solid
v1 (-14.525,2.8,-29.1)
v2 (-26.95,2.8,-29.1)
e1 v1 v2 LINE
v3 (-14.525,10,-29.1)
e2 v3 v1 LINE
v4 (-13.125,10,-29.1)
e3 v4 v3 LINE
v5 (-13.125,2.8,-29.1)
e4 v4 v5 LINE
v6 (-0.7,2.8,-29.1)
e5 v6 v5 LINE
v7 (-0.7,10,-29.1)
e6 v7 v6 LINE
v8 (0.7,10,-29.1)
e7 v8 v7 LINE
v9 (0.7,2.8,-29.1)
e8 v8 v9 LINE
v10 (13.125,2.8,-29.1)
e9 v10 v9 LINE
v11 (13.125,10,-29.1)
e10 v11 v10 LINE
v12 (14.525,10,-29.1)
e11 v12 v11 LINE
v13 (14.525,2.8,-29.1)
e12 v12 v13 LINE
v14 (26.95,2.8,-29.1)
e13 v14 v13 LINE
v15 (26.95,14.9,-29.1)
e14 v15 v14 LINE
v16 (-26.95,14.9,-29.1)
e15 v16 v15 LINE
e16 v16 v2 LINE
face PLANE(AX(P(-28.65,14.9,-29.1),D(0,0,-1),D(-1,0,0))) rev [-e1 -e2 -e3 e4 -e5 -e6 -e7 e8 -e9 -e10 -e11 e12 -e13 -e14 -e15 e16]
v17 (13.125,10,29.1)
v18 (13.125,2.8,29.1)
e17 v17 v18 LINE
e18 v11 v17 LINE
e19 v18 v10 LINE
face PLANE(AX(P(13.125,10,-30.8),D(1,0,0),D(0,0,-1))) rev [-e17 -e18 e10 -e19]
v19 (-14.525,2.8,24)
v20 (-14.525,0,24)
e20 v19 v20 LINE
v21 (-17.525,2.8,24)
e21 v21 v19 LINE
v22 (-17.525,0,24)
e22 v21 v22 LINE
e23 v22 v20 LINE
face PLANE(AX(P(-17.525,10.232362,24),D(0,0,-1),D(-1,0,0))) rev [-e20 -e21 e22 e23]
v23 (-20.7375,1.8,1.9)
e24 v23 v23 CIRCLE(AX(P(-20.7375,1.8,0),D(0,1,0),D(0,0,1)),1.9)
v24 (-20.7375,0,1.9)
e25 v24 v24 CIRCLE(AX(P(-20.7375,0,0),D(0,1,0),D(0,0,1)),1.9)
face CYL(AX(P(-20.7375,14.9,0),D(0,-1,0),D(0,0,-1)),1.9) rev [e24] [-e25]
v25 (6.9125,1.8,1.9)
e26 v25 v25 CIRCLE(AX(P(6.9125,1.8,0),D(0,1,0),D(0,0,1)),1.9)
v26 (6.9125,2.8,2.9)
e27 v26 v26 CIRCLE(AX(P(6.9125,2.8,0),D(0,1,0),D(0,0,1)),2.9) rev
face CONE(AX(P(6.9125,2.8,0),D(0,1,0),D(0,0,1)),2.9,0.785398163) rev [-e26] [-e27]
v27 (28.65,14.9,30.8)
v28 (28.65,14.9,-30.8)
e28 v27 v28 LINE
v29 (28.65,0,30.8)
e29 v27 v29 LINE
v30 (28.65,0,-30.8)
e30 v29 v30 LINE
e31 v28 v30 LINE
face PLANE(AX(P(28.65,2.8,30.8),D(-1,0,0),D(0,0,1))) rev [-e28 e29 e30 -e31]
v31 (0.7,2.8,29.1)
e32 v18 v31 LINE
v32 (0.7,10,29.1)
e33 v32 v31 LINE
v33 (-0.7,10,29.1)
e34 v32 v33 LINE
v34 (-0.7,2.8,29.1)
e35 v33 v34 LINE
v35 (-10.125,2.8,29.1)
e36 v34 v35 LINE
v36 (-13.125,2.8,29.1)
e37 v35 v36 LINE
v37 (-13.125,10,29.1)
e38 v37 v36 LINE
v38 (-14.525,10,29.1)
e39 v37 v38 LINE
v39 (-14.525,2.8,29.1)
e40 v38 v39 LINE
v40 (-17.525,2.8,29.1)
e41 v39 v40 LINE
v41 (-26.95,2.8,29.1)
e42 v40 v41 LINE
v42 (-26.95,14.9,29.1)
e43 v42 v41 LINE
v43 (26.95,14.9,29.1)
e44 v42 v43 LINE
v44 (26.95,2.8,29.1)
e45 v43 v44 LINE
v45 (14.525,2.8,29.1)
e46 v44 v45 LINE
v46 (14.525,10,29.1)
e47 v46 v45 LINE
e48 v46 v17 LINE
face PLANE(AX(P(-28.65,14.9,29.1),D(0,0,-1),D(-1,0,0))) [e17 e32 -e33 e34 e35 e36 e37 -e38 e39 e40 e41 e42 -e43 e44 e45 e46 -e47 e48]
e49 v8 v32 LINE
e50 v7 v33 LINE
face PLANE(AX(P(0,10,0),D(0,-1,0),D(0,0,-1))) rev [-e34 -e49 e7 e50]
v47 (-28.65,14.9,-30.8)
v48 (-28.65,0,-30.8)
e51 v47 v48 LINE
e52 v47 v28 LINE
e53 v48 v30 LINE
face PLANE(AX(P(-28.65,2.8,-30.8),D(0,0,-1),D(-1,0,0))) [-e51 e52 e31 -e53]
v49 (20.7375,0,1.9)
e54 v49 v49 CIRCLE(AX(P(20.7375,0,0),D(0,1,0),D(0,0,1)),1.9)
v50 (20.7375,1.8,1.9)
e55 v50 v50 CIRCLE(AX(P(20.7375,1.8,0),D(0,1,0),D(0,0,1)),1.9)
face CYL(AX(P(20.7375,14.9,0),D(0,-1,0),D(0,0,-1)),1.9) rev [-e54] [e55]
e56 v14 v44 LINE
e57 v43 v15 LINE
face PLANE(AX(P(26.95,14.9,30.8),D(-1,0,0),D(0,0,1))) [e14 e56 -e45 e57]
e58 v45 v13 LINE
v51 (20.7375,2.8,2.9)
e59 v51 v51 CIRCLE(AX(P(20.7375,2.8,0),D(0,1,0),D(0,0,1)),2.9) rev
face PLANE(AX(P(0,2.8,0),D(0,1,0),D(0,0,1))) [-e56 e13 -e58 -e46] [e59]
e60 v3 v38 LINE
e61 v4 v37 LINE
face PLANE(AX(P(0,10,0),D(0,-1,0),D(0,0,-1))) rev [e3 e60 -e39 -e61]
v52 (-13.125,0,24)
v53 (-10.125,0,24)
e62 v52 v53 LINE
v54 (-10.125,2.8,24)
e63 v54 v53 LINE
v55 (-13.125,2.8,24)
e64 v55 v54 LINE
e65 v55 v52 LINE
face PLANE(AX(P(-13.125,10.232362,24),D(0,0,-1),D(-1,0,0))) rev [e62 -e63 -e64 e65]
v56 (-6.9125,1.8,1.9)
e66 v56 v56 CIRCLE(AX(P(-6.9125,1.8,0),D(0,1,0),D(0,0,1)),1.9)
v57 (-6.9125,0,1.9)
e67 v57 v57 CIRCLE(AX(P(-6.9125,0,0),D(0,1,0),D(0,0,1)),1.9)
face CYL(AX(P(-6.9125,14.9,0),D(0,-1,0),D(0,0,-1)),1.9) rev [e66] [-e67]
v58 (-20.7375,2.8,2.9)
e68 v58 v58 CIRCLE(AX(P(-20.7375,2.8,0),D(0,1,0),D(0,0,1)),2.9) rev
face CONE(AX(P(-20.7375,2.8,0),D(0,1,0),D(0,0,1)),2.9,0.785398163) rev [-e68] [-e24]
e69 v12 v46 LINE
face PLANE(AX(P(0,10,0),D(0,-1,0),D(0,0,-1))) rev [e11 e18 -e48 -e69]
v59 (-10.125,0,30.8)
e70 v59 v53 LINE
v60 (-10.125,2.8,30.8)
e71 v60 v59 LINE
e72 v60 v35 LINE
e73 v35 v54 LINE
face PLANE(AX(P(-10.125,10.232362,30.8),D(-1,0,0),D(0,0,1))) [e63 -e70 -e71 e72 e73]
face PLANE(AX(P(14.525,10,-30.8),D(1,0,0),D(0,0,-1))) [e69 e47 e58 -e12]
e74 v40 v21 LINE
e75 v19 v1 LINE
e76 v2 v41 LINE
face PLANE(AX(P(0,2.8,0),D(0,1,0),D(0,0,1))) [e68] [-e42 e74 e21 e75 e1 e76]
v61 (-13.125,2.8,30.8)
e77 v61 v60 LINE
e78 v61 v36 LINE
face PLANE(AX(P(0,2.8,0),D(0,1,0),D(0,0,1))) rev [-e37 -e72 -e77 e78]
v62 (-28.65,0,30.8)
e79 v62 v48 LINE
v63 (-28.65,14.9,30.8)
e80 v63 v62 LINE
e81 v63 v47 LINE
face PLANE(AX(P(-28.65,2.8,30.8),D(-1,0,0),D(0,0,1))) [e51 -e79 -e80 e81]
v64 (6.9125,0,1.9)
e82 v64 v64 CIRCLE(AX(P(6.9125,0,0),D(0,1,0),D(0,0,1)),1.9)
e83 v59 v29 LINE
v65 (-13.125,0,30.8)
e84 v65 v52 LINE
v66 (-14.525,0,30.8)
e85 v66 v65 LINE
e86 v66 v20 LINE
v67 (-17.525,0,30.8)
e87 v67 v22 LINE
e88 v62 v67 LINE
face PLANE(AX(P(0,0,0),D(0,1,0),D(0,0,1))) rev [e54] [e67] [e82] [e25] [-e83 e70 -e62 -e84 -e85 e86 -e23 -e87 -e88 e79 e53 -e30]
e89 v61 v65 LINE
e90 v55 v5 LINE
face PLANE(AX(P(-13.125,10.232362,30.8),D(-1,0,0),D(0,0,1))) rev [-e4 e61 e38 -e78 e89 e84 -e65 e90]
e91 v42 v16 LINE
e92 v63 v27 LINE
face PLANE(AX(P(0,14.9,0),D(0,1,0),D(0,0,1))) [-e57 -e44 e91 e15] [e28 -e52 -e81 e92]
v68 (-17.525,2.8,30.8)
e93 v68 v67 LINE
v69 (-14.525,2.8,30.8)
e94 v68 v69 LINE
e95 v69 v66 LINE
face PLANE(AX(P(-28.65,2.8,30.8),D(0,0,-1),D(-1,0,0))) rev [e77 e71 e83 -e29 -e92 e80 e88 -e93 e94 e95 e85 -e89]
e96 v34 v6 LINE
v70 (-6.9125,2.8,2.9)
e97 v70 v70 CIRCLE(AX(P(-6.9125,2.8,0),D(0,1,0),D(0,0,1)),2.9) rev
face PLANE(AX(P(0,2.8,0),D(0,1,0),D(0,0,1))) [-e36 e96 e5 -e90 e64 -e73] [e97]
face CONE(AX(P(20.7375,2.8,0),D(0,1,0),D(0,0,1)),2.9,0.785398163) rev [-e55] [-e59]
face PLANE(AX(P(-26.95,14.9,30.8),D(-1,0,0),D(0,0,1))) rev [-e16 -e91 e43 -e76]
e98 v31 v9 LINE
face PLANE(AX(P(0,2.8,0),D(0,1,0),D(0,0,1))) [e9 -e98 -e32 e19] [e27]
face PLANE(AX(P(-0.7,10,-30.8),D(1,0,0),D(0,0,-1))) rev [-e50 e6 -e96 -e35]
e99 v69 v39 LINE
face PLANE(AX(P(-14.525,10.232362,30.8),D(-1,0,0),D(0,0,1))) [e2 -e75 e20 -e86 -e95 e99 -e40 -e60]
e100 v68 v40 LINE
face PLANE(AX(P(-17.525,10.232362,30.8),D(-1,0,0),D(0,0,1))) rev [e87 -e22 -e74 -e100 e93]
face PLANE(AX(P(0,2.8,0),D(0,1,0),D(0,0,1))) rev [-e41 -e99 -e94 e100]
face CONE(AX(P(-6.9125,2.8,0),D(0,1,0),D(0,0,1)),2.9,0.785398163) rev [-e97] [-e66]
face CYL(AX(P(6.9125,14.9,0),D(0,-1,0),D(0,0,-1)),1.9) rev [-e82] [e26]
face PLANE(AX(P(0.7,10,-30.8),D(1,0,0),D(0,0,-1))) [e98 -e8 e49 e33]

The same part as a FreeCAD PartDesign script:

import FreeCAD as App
import Part
import Sketcher
from FreeCAD import Vector


def edges_at(feature, points):
    """Names of the edges that pass closest to the given points."""
    edges = feature.Shape.Edges
    near = lambda p: min(range(len(edges)), key=lambda i: edges[i].distToShape(Part.Vertex(*p))[0])
    return sorted({f"Edge{near(p) + 1}" for p in points})


def add_polygon(sketch, points):
    """Adds a closed chain of lines whose ends are joined by coincident constraints."""
    first, n = sketch.GeometryCount, len(points)
    for a, b in zip(points, points[1:] + points[:1]):
        sketch.addGeometry(Part.LineSegment(App.Vector(*a, 0), App.Vector(*b, 0)), False)
    for i in range(n):
        sketch.addConstraint(Sketcher.Constraint("Coincident", first + i, 2, first + (i + 1) % n, 1))

doc = App.newDocument("Part")
body = doc.addObject("PartDesign::Body", "Body")

# Sketch on XZ plane
sketch1 = body.newObject("Sketcher::SketchObject", "Sketch")
sketch1.AttachmentSupport = (doc.getObject("XZ_Plane"), [""])
sketch1.MapMode = "FlatFace"
add_polygon(sketch1, [(-29, -31), (-29, 31), (29, 31), (29, -31)])  # lines 0-3
sketch1.addConstraint(Sketcher.Constraint("Vertical", 0))
sketch1.addConstraint(Sketcher.Constraint("Horizontal", 1))
sketch1.addConstraint(Sketcher.Constraint("Vertical", 2))
sketch1.addConstraint(Sketcher.Constraint("Horizontal", 3))
sketch1.addConstraint(Sketcher.Constraint("Symmetric", 0, 2, 2, 2, -1, 1))
sketch1.addConstraint(Sketcher.Constraint("DistanceX", 1, 1, 1, 2, 57.3))
sketch1.addConstraint(Sketcher.Constraint("DistanceY", 0, 1, 0, 2, 61.6))
pad1 = body.newObject("PartDesign::Pad", "Pad")
pad1.Profile = sketch1
pad1.Length = 2.8
pad1.Reversed = True

# Sketch on XZ plane
sketch2 = body.newObject("Sketcher::SketchObject", "Sketch001")
sketch2.AttachmentSupport = (doc.getObject("XZ_Plane"), [""])
sketch2.MapMode = "FlatFace"
add_polygon(sketch2, [(-29, -31), (-29, 31), (29, 31), (29, -31)])  # lines 0-3
add_polygon(sketch2, [(27, 29), (-27, 29), (-27, -29), (27, -29)])  # lines 4-7
sketch2.addConstraint(Sketcher.Constraint("Vertical", 0))
sketch2.addConstraint(Sketcher.Constraint("Horizontal", 1))
sketch2.addConstraint(Sketcher.Constraint("Vertical", 2))
sketch2.addConstraint(Sketcher.Constraint("Horizontal", 3))
sketch2.addConstraint(Sketcher.Constraint("Horizontal", 4))
sketch2.addConstraint(Sketcher.Constraint("Vertical", 5))
sketch2.addConstraint(Sketcher.Constraint("Horizontal", 6))
sketch2.addConstraint(Sketcher.Constraint("Vertical", 7))
sketch2.addConstraint(Sketcher.Constraint("Symmetric", 0, 2, 2, 2, -1, 1))
sketch2.addConstraint(Sketcher.Constraint("Symmetric", 4, 2, 6, 2, -1, 1))
sketch2.addConstraint(Sketcher.Constraint("DistanceX", 1, 1, 1, 2, 57.3))
sketch2.addConstraint(Sketcher.Constraint("DistanceX", 4, 2, 4, 1, 53.9))
sketch2.addConstraint(Sketcher.Constraint("DistanceY", 0, 1, 0, 2, 61.6))
sketch2.addConstraint(Sketcher.Constraint("DistanceY", 5, 2, 5, 1, 58.2))
pad2 = body.newObject("PartDesign::Pad", "Pad001")
pad2.Profile = sketch2
pad2.Length = 14.9
pad2.Reversed = True

# Sketch on XZ plane
sketch3 = body.newObject("Sketcher::SketchObject", "Sketch002")
sketch3.AttachmentSupport = (doc.getObject("XZ_Plane"), [""])
sketch3.MapMode = "FlatFace"
add_polygon(sketch3, [(-17.5, 24), (-17.5, 30.8), (-14.5, 30.8), (-14.5, 24)])  # lines 0-3
add_polygon(sketch3, [(-13.1, 24), (-13.1, 30.8), (-10.1, 30.8), (-10.1, 24)])  # lines 4-7
sketch3.addConstraint(Sketcher.Constraint("Vertical", 0))
sketch3.addConstraint(Sketcher.Constraint("Horizontal", 1))
sketch3.addConstraint(Sketcher.Constraint("Vertical", 2))
sketch3.addConstraint(Sketcher.Constraint("Horizontal", 3))
sketch3.addConstraint(Sketcher.Constraint("Vertical", 4))
sketch3.addConstraint(Sketcher.Constraint("Horizontal", 5))
sketch3.addConstraint(Sketcher.Constraint("Vertical", 6))
sketch3.addConstraint(Sketcher.Constraint("Horizontal", 7))
sketch3.addConstraint(Sketcher.Constraint("Horizontal", 1, 2, 4, 2))
sketch3.addConstraint(Sketcher.Constraint("Horizontal", 3, 2, 6, 2))
sketch3.addConstraint(Sketcher.Constraint("Equal", 3, 5))
sketch3.addConstraint(Sketcher.Constraint("DistanceX", 1, 1, 1, 2, 3.0))
sketch3.addConstraint(Sketcher.Constraint("DistanceY", 0, 1, 0, 2, 6.8))
sketch3.addConstraint(Sketcher.Constraint("DistanceY", -1, 1, 2, 2, 24.0))
sketch3.addConstraint(Sketcher.Constraint("DistanceX", 1, 2, 4, 2, 1.4))
sketch3.addConstraint(Sketcher.Constraint("DistanceX", 0, 2, -1, 1, 17.525))
pocket1 = body.newObject("PartDesign::Pocket", "Pocket")
pocket1.Profile = sketch3
pocket1.Length = 2.8

# Sketch on XZ plane
sketch4 = body.newObject("Sketcher::SketchObject", "Sketch003")
sketch4.AttachmentSupport = (doc.getObject("XZ_Plane"), [""])
sketch4.MapMode = "FlatFace"
add_polygon(sketch4, [(-14.5, -30.8), (-14.5, 30.8), (-13.1, 30.8), (-13.1, -30.8)])  # lines 0-3
add_polygon(sketch4, [(13.1, -30.8), (13.1, 30.8), (14.5, 30.8), (14.5, -30.8)])  # lines 4-7
add_polygon(sketch4, [(-0.7, -30.8), (-0.7, 30.8), (0.7, 30.8), (0.7, -30.8)])  # lines 8-11
sketch4.addConstraint(Sketcher.Constraint("Vertical", 0))
sketch4.addConstraint(Sketcher.Constraint("Horizontal", 1))
sketch4.addConstraint(Sketcher.Constraint("Vertical", 2))
sketch4.addConstraint(Sketcher.Constraint("Horizontal", 3))
sketch4.addConstraint(Sketcher.Constraint("Vertical", 4))
sketch4.addConstraint(Sketcher.Constraint("Horizontal", 5))
sketch4.addConstraint(Sketcher.Constraint("Vertical", 6))
sketch4.addConstraint(Sketcher.Constraint("Horizontal", 7))
sketch4.addConstraint(Sketcher.Constraint("Vertical", 8))
sketch4.addConstraint(Sketcher.Constraint("Horizontal", 9))
sketch4.addConstraint(Sketcher.Constraint("Vertical", 10))
sketch4.addConstraint(Sketcher.Constraint("Horizontal", 11))
sketch4.addConstraint(Sketcher.Constraint("Symmetric", 2, 2, 4, 2, -1, 1))
sketch4.addConstraint(Sketcher.Constraint("Symmetric", 0, 2, 6, 2, -1, 1))
sketch4.addConstraint(Sketcher.Constraint("Symmetric", 8, 2, 10, 2, -1, 1))
sketch4.addConstraint(Sketcher.Constraint("Horizontal", 1, 2, 4, 2))
sketch4.addConstraint(Sketcher.Constraint("Horizontal", 5, 2, 8, 2))
sketch4.addConstraint(Sketcher.Constraint("Equal", 7, 9))
sketch4.addConstraint(Sketcher.Constraint("DistanceX", 1, 1, 1, 2, 1.4))
sketch4.addConstraint(Sketcher.Constraint("DistanceY", 0, 1, 0, 2, 61.6))
sketch4.addConstraint(Sketcher.Constraint("DistanceX", 1, 2, 4, 2, 26.25))
pad3 = body.newObject("PartDesign::Pad", "Pad002")
pad3.Profile = sketch4
pad3.Length = 10
pad3.Reversed = True

# Sketch on XZ plane
sketch5 = body.newObject("Sketcher::SketchObject", "Sketch004")
sketch5.AttachmentSupport = (doc.getObject("XZ_Plane"), [""])
sketch5.MapMode = "FlatFace"
sketch5.addGeometry(Part.Circle(Vector(-20.7, 0, 0), Vector(0, 0, 1), 1.9), False)
sketch5.addGeometry(Part.Circle(Vector(-6.9, 0, 0), Vector(0, 0, 1), 1.9), False)
sketch5.addGeometry(Part.Circle(Vector(6.9, 0, 0), Vector(0, 0, 1), 1.9), False)
sketch5.addGeometry(Part.Circle(Vector(20.7, 0, 0), Vector(0, 0, 1), 1.9), False)
sketch5.addConstraint(Sketcher.Constraint("Equal", 0, 1))
sketch5.addConstraint(Sketcher.Constraint("Equal", 1, 2))
sketch5.addConstraint(Sketcher.Constraint("Equal", 2, 3))
sketch5.addConstraint(Sketcher.Constraint("Symmetric", 1, 3, 2, 3, -1, 1))
sketch5.addConstraint(Sketcher.Constraint("Symmetric", 0, 3, 3, 3, -1, 1))
sketch5.addConstraint(Sketcher.Constraint("PointOnObject", 0, 3, -1))
sketch5.addConstraint(Sketcher.Constraint("PointOnObject", 1, 3, -1))
sketch5.addConstraint(Sketcher.Constraint("Diameter", 0, 3.8))
sketch5.addConstraint(Sketcher.Constraint("DistanceX", 0, 3, 2, 3, 27.65))
sketch5.addConstraint(Sketcher.Constraint("DistanceX", 0, 3, 1, 3, 13.825))
pocket2 = body.newObject("PartDesign::Pocket", "Pocket001")
pocket2.Profile = sketch5
pocket2.Type = "ThroughAll"
doc.recompute()

chamfer = body.newObject("PartDesign::Chamfer", "Chamfer")
chamfer.Base = (pocket2, edges_at(pocket2, [
    (-20.738, 2.8, -1.9),
    (-6.912, 2.8, -1.9),
    (6.912, 2.8, -1.9),
    (20.738, 2.8, -1.9),
]))
chamfer.Size = 1

doc.recompute()
